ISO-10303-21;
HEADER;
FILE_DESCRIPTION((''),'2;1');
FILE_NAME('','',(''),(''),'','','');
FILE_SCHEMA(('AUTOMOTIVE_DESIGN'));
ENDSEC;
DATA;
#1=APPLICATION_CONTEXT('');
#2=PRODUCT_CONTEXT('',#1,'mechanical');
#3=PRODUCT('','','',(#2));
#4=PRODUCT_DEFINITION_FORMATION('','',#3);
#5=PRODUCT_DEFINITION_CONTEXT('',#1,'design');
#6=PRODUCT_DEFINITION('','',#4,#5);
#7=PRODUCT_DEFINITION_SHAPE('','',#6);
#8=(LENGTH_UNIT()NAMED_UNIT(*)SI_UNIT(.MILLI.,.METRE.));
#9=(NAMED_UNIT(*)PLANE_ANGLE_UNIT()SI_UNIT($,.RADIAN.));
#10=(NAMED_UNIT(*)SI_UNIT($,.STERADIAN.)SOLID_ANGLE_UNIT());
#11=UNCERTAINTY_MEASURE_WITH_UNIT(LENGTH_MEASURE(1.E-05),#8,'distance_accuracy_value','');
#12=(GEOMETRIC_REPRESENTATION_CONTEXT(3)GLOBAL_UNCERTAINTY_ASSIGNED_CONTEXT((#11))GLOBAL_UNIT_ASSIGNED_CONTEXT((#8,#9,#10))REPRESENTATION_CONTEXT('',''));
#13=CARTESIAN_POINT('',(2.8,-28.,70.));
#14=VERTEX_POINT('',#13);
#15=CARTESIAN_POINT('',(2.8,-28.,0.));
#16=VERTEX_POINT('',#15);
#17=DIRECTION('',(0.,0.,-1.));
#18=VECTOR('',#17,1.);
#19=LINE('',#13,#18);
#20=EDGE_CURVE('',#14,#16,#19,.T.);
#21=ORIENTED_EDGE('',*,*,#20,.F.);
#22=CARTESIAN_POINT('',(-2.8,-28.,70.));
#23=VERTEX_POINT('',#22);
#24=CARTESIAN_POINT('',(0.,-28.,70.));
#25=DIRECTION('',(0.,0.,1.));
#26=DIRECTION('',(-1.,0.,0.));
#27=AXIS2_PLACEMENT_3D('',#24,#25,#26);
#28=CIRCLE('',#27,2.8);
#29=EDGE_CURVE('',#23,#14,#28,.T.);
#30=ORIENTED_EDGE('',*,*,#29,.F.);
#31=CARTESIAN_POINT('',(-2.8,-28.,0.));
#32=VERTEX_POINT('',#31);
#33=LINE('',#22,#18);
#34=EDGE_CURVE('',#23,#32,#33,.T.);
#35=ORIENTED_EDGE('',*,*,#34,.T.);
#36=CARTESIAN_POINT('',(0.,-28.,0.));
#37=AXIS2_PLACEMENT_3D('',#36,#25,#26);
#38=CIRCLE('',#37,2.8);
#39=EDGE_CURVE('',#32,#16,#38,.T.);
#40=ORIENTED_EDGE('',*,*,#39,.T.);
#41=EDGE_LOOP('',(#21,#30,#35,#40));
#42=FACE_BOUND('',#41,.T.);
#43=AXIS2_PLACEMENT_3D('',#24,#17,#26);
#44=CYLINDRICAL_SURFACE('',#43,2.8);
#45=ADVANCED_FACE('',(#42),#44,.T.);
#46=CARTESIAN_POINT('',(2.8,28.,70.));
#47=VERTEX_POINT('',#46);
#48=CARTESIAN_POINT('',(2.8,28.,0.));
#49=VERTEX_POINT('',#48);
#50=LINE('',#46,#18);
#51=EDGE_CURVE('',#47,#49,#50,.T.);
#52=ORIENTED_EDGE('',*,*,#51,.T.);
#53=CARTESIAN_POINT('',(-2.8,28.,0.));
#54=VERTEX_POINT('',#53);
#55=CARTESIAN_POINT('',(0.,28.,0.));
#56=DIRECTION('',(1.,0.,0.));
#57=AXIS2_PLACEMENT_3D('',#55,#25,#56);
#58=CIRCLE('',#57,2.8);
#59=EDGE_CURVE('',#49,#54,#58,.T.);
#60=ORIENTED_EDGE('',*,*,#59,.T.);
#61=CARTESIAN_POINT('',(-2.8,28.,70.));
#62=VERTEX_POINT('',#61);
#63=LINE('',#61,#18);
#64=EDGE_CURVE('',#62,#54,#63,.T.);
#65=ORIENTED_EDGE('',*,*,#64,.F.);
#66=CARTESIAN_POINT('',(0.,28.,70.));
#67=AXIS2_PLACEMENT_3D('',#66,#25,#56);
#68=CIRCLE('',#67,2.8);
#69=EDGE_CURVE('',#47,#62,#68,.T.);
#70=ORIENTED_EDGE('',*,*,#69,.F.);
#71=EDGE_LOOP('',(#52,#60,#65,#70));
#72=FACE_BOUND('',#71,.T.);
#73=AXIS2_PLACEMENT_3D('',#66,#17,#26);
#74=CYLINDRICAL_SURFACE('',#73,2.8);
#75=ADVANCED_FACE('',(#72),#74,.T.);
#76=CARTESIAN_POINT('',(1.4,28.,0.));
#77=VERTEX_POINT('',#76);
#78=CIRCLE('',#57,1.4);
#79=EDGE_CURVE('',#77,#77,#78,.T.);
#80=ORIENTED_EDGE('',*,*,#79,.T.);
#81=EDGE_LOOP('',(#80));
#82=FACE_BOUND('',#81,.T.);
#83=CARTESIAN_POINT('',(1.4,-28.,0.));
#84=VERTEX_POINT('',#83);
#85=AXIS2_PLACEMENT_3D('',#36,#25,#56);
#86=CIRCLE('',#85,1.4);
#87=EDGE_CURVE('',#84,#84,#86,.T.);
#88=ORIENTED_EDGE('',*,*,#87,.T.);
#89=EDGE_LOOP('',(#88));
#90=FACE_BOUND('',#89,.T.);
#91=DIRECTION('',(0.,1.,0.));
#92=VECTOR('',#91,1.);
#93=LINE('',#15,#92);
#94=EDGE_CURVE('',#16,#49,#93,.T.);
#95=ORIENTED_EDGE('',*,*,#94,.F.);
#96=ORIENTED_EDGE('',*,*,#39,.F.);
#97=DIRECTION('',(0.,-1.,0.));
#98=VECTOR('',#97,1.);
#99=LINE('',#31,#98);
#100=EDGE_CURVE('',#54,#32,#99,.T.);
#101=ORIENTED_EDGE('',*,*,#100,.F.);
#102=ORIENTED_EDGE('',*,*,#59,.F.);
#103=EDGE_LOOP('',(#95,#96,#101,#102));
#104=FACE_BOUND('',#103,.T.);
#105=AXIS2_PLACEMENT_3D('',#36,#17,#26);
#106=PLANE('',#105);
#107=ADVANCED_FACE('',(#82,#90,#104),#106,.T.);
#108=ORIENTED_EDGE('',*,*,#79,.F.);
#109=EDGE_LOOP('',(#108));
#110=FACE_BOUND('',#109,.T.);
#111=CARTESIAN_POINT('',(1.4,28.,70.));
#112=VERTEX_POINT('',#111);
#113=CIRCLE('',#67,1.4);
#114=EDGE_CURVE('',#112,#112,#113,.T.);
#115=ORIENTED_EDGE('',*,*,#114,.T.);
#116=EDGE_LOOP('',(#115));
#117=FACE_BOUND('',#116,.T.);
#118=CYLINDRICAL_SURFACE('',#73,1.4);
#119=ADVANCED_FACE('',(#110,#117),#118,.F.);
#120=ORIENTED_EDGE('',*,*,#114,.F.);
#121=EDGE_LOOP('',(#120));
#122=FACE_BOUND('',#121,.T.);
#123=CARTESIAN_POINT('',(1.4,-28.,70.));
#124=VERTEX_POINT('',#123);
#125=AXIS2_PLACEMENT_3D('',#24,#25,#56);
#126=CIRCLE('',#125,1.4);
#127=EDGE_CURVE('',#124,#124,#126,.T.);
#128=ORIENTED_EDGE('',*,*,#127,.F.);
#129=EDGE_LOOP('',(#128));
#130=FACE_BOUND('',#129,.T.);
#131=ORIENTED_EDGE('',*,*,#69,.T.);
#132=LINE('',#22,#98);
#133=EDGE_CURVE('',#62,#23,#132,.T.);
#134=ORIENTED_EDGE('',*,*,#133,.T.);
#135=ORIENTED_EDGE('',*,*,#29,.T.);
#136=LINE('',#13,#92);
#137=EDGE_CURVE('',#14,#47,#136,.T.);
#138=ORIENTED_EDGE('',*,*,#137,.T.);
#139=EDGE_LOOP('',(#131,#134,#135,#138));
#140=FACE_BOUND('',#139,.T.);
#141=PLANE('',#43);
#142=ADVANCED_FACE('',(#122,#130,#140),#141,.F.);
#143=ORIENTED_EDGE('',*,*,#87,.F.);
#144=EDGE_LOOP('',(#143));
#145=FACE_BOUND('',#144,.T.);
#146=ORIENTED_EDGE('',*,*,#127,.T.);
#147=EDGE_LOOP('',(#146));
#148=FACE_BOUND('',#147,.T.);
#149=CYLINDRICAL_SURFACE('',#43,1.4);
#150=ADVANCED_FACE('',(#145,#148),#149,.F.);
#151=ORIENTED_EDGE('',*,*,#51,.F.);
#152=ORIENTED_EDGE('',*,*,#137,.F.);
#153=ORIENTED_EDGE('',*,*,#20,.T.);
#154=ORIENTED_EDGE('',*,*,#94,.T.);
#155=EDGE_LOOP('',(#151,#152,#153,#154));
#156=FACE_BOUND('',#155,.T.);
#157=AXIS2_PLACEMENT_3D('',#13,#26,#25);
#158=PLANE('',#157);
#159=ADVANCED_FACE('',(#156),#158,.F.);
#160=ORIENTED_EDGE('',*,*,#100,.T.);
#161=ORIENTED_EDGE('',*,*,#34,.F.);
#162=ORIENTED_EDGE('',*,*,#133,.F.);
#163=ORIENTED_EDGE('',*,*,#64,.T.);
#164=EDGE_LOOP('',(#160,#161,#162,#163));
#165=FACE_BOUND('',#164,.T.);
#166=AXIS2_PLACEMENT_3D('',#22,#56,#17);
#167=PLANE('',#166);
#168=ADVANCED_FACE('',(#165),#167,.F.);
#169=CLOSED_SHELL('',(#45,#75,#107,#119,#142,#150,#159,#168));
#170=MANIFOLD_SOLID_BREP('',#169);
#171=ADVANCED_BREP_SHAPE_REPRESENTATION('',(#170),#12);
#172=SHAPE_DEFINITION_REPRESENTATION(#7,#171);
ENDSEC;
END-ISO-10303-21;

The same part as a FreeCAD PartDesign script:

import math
import FreeCAD as App
import Part
import Sketcher

V = App.Vector
Q = App.Units.Quantity

doc = App.newDocument("Part")
body = doc.addObject("PartDesign::Body", "Body")

# Sketch on XY plane
sketch1 = body.newObject("Sketcher::SketchObject", "Sketch")
sketch1.AttachmentSupport = (doc.getObject("XY_Plane"), [""])
sketch1.MapMode = "FlatFace"
sketch1.addGeometry(Part.LineSegment(V(2.8, -28, 0), V(2.8, 28, 0)), False)
sketch1.addGeometry(Part.ArcOfCircle(Part.Circle(V(0, 28, 0), V(0, 0, 1), 2.8), math.radians(0), math.radians(180)), False)
sketch1.addGeometry(Part.LineSegment(V(-2.8, 28, 0), V(-2.8, -28, 0)), False)
sketch1.addGeometry(Part.ArcOfCircle(Part.Circle(V(0, -28, 0), V(0, 0, 1), 2.8), math.radians(180), math.radians(360)), False)
sketch1.addGeometry(Part.Circle(V(0, -28, 0), V(0, 0, 1), 1.4), False)
sketch1.addGeometry(Part.Circle(V(0, 28, 0), V(0, 0, 1), 1.4), False)
sketch1.addConstraint(Sketcher.Constraint("Tangent", 0, 2, 1, 1))
sketch1.addConstraint(Sketcher.Constraint("Tangent", 1, 2, 2, 1))
sketch1.addConstraint(Sketcher.Constraint("Tangent", 2, 2, 3, 1))
sketch1.addConstraint(Sketcher.Constraint("Tangent", 3, 2, 0, 1))
sketch1.addConstraint(Sketcher.Constraint("Vertical", 0))
sketch1.addConstraint(Sketcher.Constraint("Vertical", 2))
sketch1.addConstraint(Sketcher.Constraint("Coincident", 4, 3, 3, 3))
sketch1.addConstraint(Sketcher.Constraint("Coincident", 5, 3, 1, 3))
sketch1.addConstraint(Sketcher.Constraint("Equal", 4, 5))
sketch1.addConstraint(Sketcher.Constraint("Symmetric", 1, 3, 3, 3, -1, 1))
sketch1.addConstraint(Sketcher.Constraint("Diameter", 4, Q("2.8 mm")))
sketch1.addConstraint(Sketcher.Constraint("Radius", 1, Q("2.8 mm")))
sketch1.addConstraint(Sketcher.Constraint("DistanceY", 0, 1, 0, 2, Q("56 mm")))
pad1 = body.newObject("PartDesign::Pad", "Pad")
pad1.Profile = sketch1
pad1.Length = 70

doc.recompute()
